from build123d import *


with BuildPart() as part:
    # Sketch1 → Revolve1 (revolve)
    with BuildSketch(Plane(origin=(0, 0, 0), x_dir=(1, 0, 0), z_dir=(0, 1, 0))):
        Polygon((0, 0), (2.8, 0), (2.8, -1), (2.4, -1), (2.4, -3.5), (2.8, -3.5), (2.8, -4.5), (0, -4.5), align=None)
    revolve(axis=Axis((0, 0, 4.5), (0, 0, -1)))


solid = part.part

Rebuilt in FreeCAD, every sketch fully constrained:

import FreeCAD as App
import Part
import Sketcher


def add_polygon(sketch, points):
    """Adds a closed chain of lines whose ends are joined by coincident constraints."""
    first, n = sketch.GeometryCount, len(points)
    for a, b in zip(points, points[1:] + points[:1]):
        sketch.addGeometry(Part.LineSegment(App.Vector(*a, 0), App.Vector(*b, 0)), False)
    for i in range(n):
        sketch.addConstraint(Sketcher.Constraint("Coincident", first + i, 2, first + (i + 1) % n, 1))

doc = App.newDocument("Part")
params = doc.addObject("Spreadsheet::Sheet", "Params")
for row, (alias, value) in enumerate([
    ("sketch1_height", "1 mm"),
    ("sketch1_width", "2.8 mm"),
    ("sketch1_width2", "0.4 mm"),
    ("sketch1_height2", "4.5 mm"),
    ("revolution_angle", "360 deg"),
], start=1):
    params.set(f"A{row}", alias)
    params.set(f"B{row}", "=" + value)
    params.setAlias(f"B{row}", alias)

body = doc.addObject("PartDesign::Body", "Body")

# Sketch on XZ plane
sketch1 = doc.addObject("Sketcher::SketchObject", "Sketch")
body.addObject(sketch1)
sketch1.AttachmentSupport = (doc.XZ_Plane, [""])
sketch1.MapMode = "FlatFace"
add_polygon(sketch1, [(2.8, 0), (0, 0), (0, 4.5), (2.8, 4.5), (2.8, 3.5), (2.4, 3.5), (2.4, 1), (2.8, 1)])  # lines 0-7
sketch1.addConstraint(Sketcher.Constraint("Horizontal", 0))
sketch1.addConstraint(Sketcher.Constraint("Vertical", 1))
sketch1.addConstraint(Sketcher.Constraint("Horizontal", 2))
sketch1.addConstraint(Sketcher.Constraint("Vertical", 3))
sketch1.addConstraint(Sketcher.Constraint("Horizontal", 4))
sketch1.addConstraint(Sketcher.Constraint("Vertical", 5))
sketch1.addConstraint(Sketcher.Constraint("Horizontal", 6))
sketch1.addConstraint(Sketcher.Constraint("Vertical", 7))
sketch1.addConstraint(Sketcher.Constraint("Coincident", 0, 2, -1, 1))
sketch1.addConstraint(Sketcher.Constraint("Vertical", 3, 2, 6, 2))
sketch1.addConstraint(Sketcher.Constraint("Equal", 3, 7))
sketch1.addConstraint(Sketcher.Constraint("DistanceY", 3, 2, 3, 1, 1.0))
sketch1.addConstraint(Sketcher.Constraint("DistanceX", 0, 2, 0, 1, 2.8))
sketch1.addConstraint(Sketcher.Constraint("DistanceX", 4, 2, 4, 1, 0.4))
sketch1.addConstraint(Sketcher.Constraint("DistanceY", 1, 1, 1, 2, 4.5))
sketch1.setExpression("Constraints[19]", "Params.sketch1_height")
sketch1.setExpression("Constraints[20]", "Params.sketch1_width")
sketch1.setExpression("Constraints[21]", "Params.sketch1_width2")
sketch1.setExpression("Constraints[22]", "Params.sketch1_height2")
revolution = doc.addObject("PartDesign::Revolution", "Revolution")
body.addObject(revolution)
revolution.Profile = sketch1
revolution.ReferenceAxis = (sketch1, ["V_Axis"])
revolution.setExpression("Angle", "Params.revolution_angle")

doc.recompute()
